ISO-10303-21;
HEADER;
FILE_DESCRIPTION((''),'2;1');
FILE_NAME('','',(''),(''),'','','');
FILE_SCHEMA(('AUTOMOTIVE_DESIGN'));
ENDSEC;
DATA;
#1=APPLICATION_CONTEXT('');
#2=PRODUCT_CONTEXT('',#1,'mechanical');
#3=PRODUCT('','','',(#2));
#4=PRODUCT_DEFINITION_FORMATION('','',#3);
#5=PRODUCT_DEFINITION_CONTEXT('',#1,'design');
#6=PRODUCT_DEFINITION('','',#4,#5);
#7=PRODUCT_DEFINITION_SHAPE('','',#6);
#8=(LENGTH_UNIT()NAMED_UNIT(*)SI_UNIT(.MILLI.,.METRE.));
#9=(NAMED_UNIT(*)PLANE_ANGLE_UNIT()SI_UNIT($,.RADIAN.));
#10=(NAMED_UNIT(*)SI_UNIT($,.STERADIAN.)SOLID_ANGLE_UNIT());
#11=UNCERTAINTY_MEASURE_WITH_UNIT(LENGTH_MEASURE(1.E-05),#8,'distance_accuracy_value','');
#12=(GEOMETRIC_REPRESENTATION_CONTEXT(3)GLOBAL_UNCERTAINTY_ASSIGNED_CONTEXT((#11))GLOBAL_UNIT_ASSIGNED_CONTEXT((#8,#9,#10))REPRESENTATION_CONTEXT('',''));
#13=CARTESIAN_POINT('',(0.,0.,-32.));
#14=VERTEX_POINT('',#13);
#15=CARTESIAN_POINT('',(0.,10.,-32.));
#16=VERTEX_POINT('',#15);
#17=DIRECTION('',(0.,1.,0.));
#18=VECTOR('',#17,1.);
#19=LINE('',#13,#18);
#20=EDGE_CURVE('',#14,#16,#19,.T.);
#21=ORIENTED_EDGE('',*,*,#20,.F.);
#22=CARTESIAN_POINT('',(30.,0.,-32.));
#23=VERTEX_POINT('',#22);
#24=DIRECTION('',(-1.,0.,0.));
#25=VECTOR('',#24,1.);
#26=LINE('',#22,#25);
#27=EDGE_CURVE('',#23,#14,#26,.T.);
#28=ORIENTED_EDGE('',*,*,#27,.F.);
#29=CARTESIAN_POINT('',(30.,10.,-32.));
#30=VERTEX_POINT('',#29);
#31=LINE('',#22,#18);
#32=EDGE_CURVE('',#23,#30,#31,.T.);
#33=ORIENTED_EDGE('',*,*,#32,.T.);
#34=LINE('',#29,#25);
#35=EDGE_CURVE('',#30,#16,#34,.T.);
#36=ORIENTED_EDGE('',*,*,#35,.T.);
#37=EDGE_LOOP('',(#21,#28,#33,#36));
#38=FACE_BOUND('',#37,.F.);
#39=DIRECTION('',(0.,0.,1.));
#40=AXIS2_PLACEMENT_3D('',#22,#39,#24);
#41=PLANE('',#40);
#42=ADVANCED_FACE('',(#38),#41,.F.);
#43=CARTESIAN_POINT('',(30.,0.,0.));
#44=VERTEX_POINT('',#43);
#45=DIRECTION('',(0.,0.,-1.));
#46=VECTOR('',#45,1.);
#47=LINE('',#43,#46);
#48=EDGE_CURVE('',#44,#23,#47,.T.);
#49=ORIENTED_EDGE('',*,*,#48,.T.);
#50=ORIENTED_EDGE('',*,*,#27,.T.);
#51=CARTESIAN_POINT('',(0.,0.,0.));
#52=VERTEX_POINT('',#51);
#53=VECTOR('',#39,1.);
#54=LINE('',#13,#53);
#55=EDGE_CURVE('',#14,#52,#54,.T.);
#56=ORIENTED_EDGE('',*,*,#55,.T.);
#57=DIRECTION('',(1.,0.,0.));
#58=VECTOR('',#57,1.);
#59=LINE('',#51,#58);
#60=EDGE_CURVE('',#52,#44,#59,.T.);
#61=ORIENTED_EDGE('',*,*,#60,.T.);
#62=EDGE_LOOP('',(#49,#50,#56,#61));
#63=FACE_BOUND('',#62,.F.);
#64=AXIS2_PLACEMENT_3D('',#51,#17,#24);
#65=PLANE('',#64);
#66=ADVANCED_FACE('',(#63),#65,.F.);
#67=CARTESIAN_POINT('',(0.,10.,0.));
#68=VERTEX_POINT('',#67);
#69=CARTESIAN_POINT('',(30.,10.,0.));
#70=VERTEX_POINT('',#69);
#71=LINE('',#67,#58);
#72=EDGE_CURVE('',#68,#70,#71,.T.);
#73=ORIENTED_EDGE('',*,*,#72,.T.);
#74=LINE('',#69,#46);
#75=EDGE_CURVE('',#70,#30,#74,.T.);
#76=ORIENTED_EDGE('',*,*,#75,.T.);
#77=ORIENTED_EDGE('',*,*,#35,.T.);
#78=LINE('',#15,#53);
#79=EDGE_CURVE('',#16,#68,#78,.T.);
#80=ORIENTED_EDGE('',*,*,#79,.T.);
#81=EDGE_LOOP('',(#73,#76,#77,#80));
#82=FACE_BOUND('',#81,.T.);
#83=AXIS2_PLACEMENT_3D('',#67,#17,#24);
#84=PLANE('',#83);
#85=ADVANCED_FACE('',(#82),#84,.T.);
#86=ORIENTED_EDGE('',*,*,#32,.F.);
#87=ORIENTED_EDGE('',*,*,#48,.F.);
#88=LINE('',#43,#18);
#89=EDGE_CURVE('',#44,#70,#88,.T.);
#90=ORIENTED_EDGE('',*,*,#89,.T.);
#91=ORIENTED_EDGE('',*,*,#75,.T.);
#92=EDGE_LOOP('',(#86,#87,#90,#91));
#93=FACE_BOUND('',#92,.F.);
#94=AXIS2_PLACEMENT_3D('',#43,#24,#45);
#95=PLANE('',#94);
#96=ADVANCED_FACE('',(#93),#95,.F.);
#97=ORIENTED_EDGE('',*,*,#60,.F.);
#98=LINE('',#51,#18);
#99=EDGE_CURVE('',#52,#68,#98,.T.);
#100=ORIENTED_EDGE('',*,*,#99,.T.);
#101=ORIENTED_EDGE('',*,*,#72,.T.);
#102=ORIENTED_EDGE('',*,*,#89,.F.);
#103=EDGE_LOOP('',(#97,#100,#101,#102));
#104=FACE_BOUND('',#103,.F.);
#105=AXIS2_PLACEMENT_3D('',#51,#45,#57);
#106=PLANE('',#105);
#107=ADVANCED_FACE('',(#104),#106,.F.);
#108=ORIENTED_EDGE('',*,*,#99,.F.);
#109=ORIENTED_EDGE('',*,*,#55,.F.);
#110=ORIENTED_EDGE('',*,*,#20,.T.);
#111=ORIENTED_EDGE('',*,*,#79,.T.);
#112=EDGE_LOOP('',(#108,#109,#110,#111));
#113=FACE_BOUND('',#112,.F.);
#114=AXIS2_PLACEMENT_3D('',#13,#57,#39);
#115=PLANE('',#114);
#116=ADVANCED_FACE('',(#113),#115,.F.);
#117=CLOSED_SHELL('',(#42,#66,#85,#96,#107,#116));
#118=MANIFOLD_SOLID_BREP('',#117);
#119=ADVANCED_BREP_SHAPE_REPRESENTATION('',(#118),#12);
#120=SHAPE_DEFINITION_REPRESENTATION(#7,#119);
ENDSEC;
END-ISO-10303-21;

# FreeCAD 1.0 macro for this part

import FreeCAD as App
import Part
import Sketcher
Q = App.Units.Quantity


def add_polygon(sketch, points):
    """Adds a closed chain of lines whose ends are joined by coincident constraints."""
    first, n = sketch.GeometryCount, len(points)
    for a, b in zip(points, points[1:] + points[:1]):
        sketch.addGeometry(Part.LineSegment(App.Vector(*a, 0), App.Vector(*b, 0)), False)
    for i in range(n):
        sketch.addConstraint(Sketcher.Constraint("Coincident", first + i, 2, first + (i + 1) % n, 1))

doc = App.newDocument("Part")
params = doc.addObject("Spreadsheet::Sheet", "Params")
for row, (alias, value) in enumerate([
    ("sketch1_width", "30 mm"),
    ("sketch1_height", "32 mm"),
    ("pad1_length", "10 mm"),
], start=1):
    params.set(f"A{row}", alias)
    params.set(f"B{row}", "=" + value)
    params.setAlias(f"B{row}", alias)

body = doc.addObject("PartDesign::Body", "Body")

# Sketch on XZ plane
sketch1 = body.newObject("Sketcher::SketchObject", "Sketch")
sketch1.AttachmentSupport = (doc.getObject("XZ_Plane"), [""])
sketch1.MapMode = "FlatFace"
add_polygon(sketch1, [(0, -32), (0, 0), (30, 0), (30, -32)])  # lines 0-3
sketch1.addConstraint([
    Sketcher.Constraint("Vertical", 0),
    Sketcher.Constraint("Horizontal", 1),
    Sketcher.Constraint("Vertical", 2),
    Sketcher.Constraint("Horizontal", 3),
    Sketcher.Constraint("Coincident", 0, 2, -1, 1),
    Sketcher.Constraint("DistanceX", 1, 1, 1, 2, Q("30 mm")),
    Sketcher.Constraint("DistanceY", 0, 1, 0, 2, Q("32 mm")),
])
sketch1.setExpression("Constraints[9]", "Params.sketch1_width")
sketch1.setExpression("Constraints[10]", "Params.sketch1_height")
pad1 = body.newObject("PartDesign::Pad", "Pad")
pad1.Profile = sketch1
pad1.setExpression("Length", "Params.pad1_length")
pad1.Reversed = True

doc.recompute()
